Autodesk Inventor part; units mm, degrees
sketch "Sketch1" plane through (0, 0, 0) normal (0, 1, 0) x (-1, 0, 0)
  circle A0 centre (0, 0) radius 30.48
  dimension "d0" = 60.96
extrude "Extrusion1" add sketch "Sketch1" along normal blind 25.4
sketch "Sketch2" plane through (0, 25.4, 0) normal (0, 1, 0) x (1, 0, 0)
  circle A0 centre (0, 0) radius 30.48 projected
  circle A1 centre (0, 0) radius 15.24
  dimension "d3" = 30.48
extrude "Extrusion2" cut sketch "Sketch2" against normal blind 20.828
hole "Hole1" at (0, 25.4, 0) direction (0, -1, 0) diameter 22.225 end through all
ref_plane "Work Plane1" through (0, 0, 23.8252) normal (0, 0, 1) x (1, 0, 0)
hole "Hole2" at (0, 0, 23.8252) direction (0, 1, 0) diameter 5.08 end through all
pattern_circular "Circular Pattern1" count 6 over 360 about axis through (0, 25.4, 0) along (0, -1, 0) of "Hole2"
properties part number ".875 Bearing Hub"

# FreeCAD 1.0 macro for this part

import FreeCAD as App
import Part
import Sketcher
Q = App.Units.Quantity

doc = App.newDocument("Part")
body = doc.addObject("PartDesign::Body", "Body")

# Sketch on XZ plane
sketch1 = body.newObject("Sketcher::SketchObject", "Sketch")
sketch1.AttachmentSupport = (doc.getObject("XZ_Plane"), [""])
sketch1.MapMode = "FlatFace"
sketch1.addGeometry(Part.Circle(App.Vector(0, 0, 0), App.Vector(0, 0, 1), 30.48), False)
sketch1.addConstraint(Sketcher.Constraint("Coincident", 0, 3, -1, 1))
sketch1.addConstraint(Sketcher.Constraint("Diameter", 0, Q("2.4 in")))
pad1 = body.newObject("PartDesign::Pad", "Pad")
pad1.Profile = sketch1
pad1.Length = Q("1 in")
pad1.Reversed = True

# Sketch on XZ plane
sketch2 = body.newObject("Sketcher::SketchObject", "Sketch001")
sketch2.AttachmentSupport = (doc.getObject("XZ_Plane"), [""])
sketch2.MapMode = "FlatFace"
sketch2.AttachmentOffset = App.Placement(App.Vector(0, 0, -1 * 25.4), App.Rotation())
sketch2.addGeometry(Part.Circle(App.Vector(0, 0, 0), App.Vector(0, 0, 1), 30.48), False)
sketch2.addGeometry(Part.Circle(App.Vector(0, 0, 0), App.Vector(0, 0, 1), 15.24), False)
sketch2.addConstraint(Sketcher.Constraint("Coincident", 0, 3, -1, 1))
sketch2.addConstraint(Sketcher.Constraint("Coincident", 1, 3, -1, 1))
sketch2.addConstraint(Sketcher.Constraint("Diameter", 0, Q("2.4 in")))
sketch2.addConstraint(Sketcher.Constraint("Diameter", 1, Q("1.2 in")))
pocket1 = body.newObject("PartDesign::Pocket", "Pocket")
pocket1.Profile = sketch2
pocket1.Length = Q("0.82 in")
pocket1.Reversed = True

# Sketch on XZ plane
sketch3 = body.newObject("Sketcher::SketchObject", "Sketch002")
sketch3.AttachmentSupport = (doc.getObject("XZ_Plane"), [""])
sketch3.MapMode = "FlatFace"
sketch3.AttachmentOffset = App.Placement(App.Vector(0, 0, -1 * 25.4), App.Rotation())
sketch3.addGeometry(Part.Circle(App.Vector(0, 0, 0), App.Vector(0, 0, 1), 11.1125), False)
sketch3.addConstraint(Sketcher.Constraint("Coincident", 0, 3, -1, 1))
sketch3.addConstraint(Sketcher.Constraint("Diameter", 0, Q("0.875 in")))
doc.recompute()
hole = body.newObject("PartDesign::Hole", "Hole")
hole.Profile = sketch3
hole.ThreadType = "None"
hole.Diameter = Q("0.875 in")
hole.DepthType = "ThroughAll"
hole.Reversed = True

# Sketch on XZ plane
sketch4 = body.newObject("Sketcher::SketchObject", "Sketch003")
sketch4.AttachmentSupport = (doc.getObject("XZ_Plane"), [""])
sketch4.MapMode = "FlatFace"
sketch4.addGeometry(Part.Circle(App.Vector(0, 23.8252, 0), App.Vector(0, 0, 1), 2.54), False)
sketch4.addConstraint(Sketcher.Constraint("PointOnObject", 0, 3, -2))
sketch4.addConstraint(Sketcher.Constraint("Diameter", 0, Q("0.2 in")))
sketch4.addConstraint(Sketcher.Constraint("DistanceY", -1, 1, 0, 3, Q("0.938 in")))
doc.recompute()
hole2 = body.newObject("PartDesign::Hole", "Hole001")
hole2.Profile = sketch4
hole2.ThreadType = "None"
hole2.Diameter = Q("0.2 in")
hole2.DepthType = "ThroughAll"
doc.recompute()

polarpattern = body.newObject("PartDesign::PolarPattern", "PolarPattern")
polarpattern.Originals = [hole2]
polarpattern.Axis = (doc.getObject("Y_Axis"), [""])
polarpattern.Angle = 360
polarpattern.Occurrences = 6
body.Tip = polarpattern

doc.recompute()
